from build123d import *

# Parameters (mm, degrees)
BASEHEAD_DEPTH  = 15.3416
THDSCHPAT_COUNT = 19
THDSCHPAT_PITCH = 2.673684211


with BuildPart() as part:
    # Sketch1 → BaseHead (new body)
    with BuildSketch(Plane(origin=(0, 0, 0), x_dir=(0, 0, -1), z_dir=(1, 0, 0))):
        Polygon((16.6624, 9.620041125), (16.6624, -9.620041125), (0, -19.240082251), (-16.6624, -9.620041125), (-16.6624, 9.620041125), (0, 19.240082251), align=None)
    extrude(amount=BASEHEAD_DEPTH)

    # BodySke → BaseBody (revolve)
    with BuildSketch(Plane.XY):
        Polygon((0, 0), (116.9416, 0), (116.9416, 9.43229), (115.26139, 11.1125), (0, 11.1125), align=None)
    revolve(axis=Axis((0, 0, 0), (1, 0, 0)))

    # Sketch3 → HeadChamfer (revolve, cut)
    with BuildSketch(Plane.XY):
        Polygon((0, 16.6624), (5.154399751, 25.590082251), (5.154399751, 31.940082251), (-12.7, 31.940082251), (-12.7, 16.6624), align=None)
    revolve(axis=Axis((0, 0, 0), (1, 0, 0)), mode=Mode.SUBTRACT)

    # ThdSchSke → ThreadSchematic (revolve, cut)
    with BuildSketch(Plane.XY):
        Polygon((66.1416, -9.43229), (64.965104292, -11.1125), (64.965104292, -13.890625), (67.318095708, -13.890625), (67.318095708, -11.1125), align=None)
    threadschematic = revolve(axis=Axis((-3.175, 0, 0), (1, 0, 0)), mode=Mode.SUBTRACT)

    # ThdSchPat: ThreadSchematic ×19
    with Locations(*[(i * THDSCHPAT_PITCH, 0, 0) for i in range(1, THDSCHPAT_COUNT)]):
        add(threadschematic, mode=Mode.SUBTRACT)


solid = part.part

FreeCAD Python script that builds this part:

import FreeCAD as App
import Part
import Sketcher
from FreeCAD import Vector
Q = App.Units.Quantity


def add_polygon(sketch, points):
    """Adds a closed chain of lines whose ends are joined by coincident constraints."""
    first, n = sketch.GeometryCount, len(points)
    for a, b in zip(points, points[1:] + points[:1]):
        sketch.addGeometry(Part.LineSegment(App.Vector(*a, 0), App.Vector(*b, 0)), False)
    for i in range(n):
        sketch.addConstraint(Sketcher.Constraint("Coincident", first + i, 2, first + (i + 1) % n, 1))

doc = App.newDocument("Part")
params = doc.addObject("Spreadsheet::Sheet", "Params")
for row, (alias, value) in enumerate([
    ("pad1_length", "0.604 in"),
    ("sketch2_width", "4.604 in"),
    ("sketch2_height", "0.4375 in"),
    ("revolution_angle", "360 deg"),
    ("sketch3_width", "0.5 in"),
    ("sketch3_height", "0.25 in"),
    ("groove_angle", "360 deg"),
    ("sketch4_height", "0.109375 in"),
    ("groove2_angle", "360 deg"),
    ("linearpattern_pitch", "2.673684 mm"),
], start=1):
    params.set(f"A{row}", alias)
    params.set(f"B{row}", "=" + value)
    params.setAlias(f"B{row}", alias)

body = doc.addObject("PartDesign::Body", "Body")

# Sketch on YZ plane
sketch1 = doc.addObject("Sketcher::SketchObject", "Sketch")
body.addObject(sketch1)
sketch1.AttachmentSupport = (doc.YZ_Plane, [""])
sketch1.MapMode = "FlatFace"
add_polygon(sketch1, [(-10, -17), (10, -17), (19, 0), (10, 17), (-10, 17), (-19, 0)])  # lines 0-5
sketch1.addConstraint([
    Sketcher.Constraint("Horizontal", 0),
    Sketcher.Constraint("Horizontal", 3),
    Sketcher.Constraint("Symmetric", 0, 2, 3, 2, -1, 1),
    Sketcher.Constraint("Symmetric", 1, 2, 4, 2, -1, 1),
    Sketcher.Constraint("PointOnObject", 1, 2, -1),
    Sketcher.Constraint("Parallel", 2, 5),
    Sketcher.Constraint("Vertical", 0, 2, 2, 2),
    Sketcher.Constraint("Angle", 1, Q("60 deg")),
    Sketcher.Constraint("DistanceY", 0, 2, -1, 1, Q("0.656 in")),
    Sketcher.Constraint("DistanceX", 0, 1, 0, 2, Q("19.240082 mm")),
])
pad1 = doc.addObject("PartDesign::Pad", "Pad")
body.addObject(pad1)
pad1.Profile = sketch1
pad1.setExpression("Length", "Params.pad1_length")

# Sketch on XY plane
sketch2 = doc.addObject("Sketcher::SketchObject", "Sketch001")
body.addObject(sketch2)
sketch2.AttachmentSupport = (doc.XY_Plane, [""])
sketch2.MapMode = "FlatFace"
add_polygon(sketch2, [(0, 0), (116.9, 0), (116.9, 9.4), (115.3, 11.1), (0, 11.1)])  # lines 0-4
sketch2.addConstraint([
    Sketcher.Constraint("Horizontal", 0),
    Sketcher.Constraint("Vertical", 1),
    Sketcher.Constraint("Horizontal", 3),
    Sketcher.Constraint("Vertical", 4),
    Sketcher.Constraint("Coincident", 4, 2, -1, 1),
    Sketcher.Constraint("Angle", 2, Q("135 deg")),
    Sketcher.Constraint("DistanceX", 0, 1, 0, 2, Q("4.604 in")),
    Sketcher.Constraint("DistanceY", 4, 2, 4, 1, Q("0.4375 in")),
    Sketcher.Constraint("DistanceX", 3, 2, 3, 1, Q("115.26139 mm")),
])
sketch2.setExpression("Constraints[11]", "Params.sketch2_width")
sketch2.setExpression("Constraints[12]", "Params.sketch2_height")
revolution = doc.addObject("PartDesign::Revolution", "Revolution")
body.addObject(revolution)
revolution.Profile = sketch2
revolution.ReferenceAxis = (sketch2, ["H_Axis"])
revolution.setExpression("Angle", "Params.revolution_angle")

# Sketch on XY plane
sketch3 = doc.addObject("Sketcher::SketchObject", "Sketch002")
body.addObject(sketch3)
sketch3.AttachmentSupport = (doc.XY_Plane, [""])
sketch3.MapMode = "FlatFace"
add_polygon(sketch3, [(0, 17), (5, 26), (5, 32), (-13, 32), (-13, 17)])  # lines 0-4
sketch3.addConstraint([
    Sketcher.Constraint("Vertical", 1),
    Sketcher.Constraint("Horizontal", 2),
    Sketcher.Constraint("Vertical", 3),
    Sketcher.Constraint("Horizontal", 4),
    Sketcher.Constraint("PointOnObject", 4, 2, -2),
    Sketcher.Constraint("DistanceX", 4, 1, 4, 2, Q("0.5 in")),
    Sketcher.Constraint("Angle", 0, Q("60 deg")),
    Sketcher.Constraint("DistanceY", 1, 1, 1, 2, Q("0.25 in")),
    Sketcher.Constraint("DistanceY", -1, 1, 3, 2, Q("0.656 in")),
    Sketcher.Constraint("DistanceX", 2, 2, 2, 1, Q("17.8544 mm")),
])
sketch3.setExpression("Constraints[10]", "Params.sketch3_width")
sketch3.setExpression("Constraints[12]", "Params.sketch3_height")
groove = doc.addObject("PartDesign::Groove", "Groove")
body.addObject(groove)
groove.Profile = sketch3
groove.ReferenceAxis = (sketch3, ["H_Axis"])
groove.setExpression("Angle", "Params.groove_angle")

# Sketch on XY plane
sketch4 = doc.addObject("Sketcher::SketchObject", "Sketch003")
body.addObject(sketch4)
sketch4.AttachmentSupport = (doc.XY_Plane, [""])
sketch4.MapMode = "FlatFace"
add_polygon(sketch4, [(66.1, -9.4), (65, -11.1), (65, -13.9), (67.3, -13.9), (67.3, -11.1)])  # lines 0-4
sketch4.addConstraint([
    Sketcher.Constraint("Vertical", 1),
    Sketcher.Constraint("Horizontal", 2),
    Sketcher.Constraint("Vertical", 3),
    Sketcher.Constraint("Horizontal", 0, 2, 3, 2),
    Sketcher.Constraint("Equal", 0, 4),
    Sketcher.Constraint("Angle", 0, Q("-125 deg")),
    Sketcher.Constraint("DistanceY", 1, 2, 1, 1, Q("0.109375 in")),
    Sketcher.Constraint("DistanceY", 0, 2, -1, 1, Q("0.4375 in")),
    Sketcher.Constraint("DistanceX", -1, 1, 4, 2, Q("2.604 in")),
    Sketcher.Constraint("DistanceX", 2, 1, 2, 2, Q("2.352991 mm")),
])
sketch4.setExpression("Constraints[11]", "Params.sketch4_height")
groove2 = doc.addObject("PartDesign::Groove", "Groove001")
body.addObject(groove2)
groove2.Profile = sketch4
groove2.ReferenceAxis = (sketch4, ["H_Axis"])
groove2.setExpression("Angle", "Params.groove2_angle")
doc.recompute()

linearpattern = doc.addObject("PartDesign::LinearPattern", "LinearPattern")
body.addObject(linearpattern)
linearpattern.Originals = [groove2]
linearpattern.Direction = (doc.X_Axis, [""])
linearpattern.Mode = "offset"
linearpattern.setExpression("Offset", "Params.linearpattern_pitch")
linearpattern.Occurrences = 19
body.Tip = linearpattern

doc.recompute()
